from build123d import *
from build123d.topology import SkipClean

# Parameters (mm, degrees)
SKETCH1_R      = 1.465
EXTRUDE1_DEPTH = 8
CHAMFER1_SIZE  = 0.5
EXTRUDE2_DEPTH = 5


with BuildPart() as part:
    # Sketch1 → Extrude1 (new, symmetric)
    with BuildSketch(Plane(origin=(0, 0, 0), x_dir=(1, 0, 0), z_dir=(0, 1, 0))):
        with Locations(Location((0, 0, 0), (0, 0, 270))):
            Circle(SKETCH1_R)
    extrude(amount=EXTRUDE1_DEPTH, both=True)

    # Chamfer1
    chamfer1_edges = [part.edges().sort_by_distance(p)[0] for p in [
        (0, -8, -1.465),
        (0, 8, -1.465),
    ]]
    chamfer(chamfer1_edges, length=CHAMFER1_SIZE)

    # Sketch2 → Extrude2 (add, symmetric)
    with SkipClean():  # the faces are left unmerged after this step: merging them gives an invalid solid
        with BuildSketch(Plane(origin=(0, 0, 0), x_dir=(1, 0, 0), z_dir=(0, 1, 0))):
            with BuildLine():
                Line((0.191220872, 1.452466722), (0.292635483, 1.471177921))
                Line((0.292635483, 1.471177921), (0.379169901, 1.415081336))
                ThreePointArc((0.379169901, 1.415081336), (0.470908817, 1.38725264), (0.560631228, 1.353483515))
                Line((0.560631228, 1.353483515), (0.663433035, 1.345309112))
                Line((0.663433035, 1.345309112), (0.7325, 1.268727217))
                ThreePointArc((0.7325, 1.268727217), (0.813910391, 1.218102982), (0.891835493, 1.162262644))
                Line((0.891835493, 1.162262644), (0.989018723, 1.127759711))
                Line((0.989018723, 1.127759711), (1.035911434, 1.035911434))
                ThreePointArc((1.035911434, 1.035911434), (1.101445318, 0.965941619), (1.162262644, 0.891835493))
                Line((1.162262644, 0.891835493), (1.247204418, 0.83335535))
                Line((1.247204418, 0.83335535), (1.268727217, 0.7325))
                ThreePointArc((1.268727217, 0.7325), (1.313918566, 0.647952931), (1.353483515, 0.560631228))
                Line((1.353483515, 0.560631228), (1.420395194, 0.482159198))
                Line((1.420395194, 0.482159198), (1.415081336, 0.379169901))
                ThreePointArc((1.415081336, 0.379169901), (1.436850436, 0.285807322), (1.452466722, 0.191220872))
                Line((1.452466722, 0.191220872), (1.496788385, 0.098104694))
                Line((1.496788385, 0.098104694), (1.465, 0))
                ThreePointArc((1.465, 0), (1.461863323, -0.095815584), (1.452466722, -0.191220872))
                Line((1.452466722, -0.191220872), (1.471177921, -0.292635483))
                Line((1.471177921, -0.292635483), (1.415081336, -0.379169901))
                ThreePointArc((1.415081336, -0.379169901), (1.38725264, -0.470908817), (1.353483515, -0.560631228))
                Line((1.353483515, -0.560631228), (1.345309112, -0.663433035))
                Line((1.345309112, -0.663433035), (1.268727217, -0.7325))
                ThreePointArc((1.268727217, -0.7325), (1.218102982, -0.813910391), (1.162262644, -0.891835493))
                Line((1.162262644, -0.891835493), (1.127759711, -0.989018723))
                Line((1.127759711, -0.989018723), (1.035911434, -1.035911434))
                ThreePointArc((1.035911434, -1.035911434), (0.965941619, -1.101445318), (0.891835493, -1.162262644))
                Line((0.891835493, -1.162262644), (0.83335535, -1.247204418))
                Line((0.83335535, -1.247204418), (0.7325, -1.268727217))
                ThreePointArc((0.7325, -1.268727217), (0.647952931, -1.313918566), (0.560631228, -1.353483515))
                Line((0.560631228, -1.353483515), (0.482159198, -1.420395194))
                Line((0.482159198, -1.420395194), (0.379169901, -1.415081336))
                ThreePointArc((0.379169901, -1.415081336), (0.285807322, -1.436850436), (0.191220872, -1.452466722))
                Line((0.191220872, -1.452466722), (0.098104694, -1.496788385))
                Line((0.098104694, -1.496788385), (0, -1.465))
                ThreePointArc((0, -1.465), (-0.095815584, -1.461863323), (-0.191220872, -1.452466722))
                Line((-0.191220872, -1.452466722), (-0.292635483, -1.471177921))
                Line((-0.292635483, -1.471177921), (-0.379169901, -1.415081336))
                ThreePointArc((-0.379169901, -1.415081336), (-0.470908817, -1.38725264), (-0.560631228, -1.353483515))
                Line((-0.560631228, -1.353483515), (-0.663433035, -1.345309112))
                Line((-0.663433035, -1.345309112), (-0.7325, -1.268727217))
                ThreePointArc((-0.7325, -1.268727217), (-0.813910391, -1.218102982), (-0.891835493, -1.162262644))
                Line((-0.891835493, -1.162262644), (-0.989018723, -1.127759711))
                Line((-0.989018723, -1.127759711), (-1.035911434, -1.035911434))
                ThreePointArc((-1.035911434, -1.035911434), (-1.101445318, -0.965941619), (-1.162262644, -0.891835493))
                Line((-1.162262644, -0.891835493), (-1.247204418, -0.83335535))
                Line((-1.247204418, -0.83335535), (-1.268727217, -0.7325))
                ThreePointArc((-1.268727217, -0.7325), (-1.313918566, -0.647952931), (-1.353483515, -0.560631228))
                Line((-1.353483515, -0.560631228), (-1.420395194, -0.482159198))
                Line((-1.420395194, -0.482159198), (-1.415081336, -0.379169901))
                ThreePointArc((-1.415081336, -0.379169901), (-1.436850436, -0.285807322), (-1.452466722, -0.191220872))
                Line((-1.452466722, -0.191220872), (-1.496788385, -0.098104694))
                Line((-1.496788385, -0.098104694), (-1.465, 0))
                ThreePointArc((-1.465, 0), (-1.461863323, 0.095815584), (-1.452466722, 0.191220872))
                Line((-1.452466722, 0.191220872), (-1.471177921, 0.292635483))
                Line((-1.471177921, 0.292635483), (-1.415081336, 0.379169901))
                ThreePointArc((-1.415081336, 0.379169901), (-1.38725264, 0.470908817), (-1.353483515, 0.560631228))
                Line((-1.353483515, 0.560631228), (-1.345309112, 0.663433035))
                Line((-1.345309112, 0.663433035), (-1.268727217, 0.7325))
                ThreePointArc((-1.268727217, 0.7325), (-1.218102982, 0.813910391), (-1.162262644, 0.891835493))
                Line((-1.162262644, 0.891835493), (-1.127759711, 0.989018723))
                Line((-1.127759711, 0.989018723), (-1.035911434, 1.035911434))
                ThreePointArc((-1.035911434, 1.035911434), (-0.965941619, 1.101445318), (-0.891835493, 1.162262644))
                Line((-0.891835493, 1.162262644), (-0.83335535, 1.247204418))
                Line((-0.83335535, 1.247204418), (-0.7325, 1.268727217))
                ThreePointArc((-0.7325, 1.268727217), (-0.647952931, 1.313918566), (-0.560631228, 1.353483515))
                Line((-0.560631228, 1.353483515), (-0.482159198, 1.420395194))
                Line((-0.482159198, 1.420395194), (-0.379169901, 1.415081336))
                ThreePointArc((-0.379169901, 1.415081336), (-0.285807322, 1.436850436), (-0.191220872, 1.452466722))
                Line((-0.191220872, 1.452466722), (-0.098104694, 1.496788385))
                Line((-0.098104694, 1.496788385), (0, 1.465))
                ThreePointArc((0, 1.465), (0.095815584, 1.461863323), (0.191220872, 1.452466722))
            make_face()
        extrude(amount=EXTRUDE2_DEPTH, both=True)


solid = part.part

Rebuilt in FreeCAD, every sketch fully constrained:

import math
import FreeCAD as App
import Part
import Sketcher


def edges_at(feature, points):
    """Names of the edges that pass closest to the given points."""
    edges = feature.Shape.Edges
    near = lambda p: min(range(len(edges)), key=lambda i: edges[i].distToShape(Part.Vertex(*p))[0])
    return sorted({f"Edge{near(p) + 1}" for p in points})

doc = App.newDocument("Part")
body = doc.addObject("PartDesign::Body", "Body")

# Sketch on XZ plane
sketch1 = body.newObject("Sketcher::SketchObject", "Sketch")
sketch1.AttachmentSupport = (doc.getObject("XZ_Plane"), [""])
sketch1.MapMode = "FlatFace"
sketch1.addGeometry(Part.Circle(App.Vector(0, 0, 0), App.Vector(0, 0, 1), 1.465), False)
sketch1.addConstraint(Sketcher.Constraint("Coincident", 0, 3, -1, 1))
sketch1.addConstraint(Sketcher.Constraint("Diameter", 0, 2.93))
pad1 = body.newObject("PartDesign::Pad", "Pad")
pad1.Profile = sketch1
pad1.Length = 16
pad1.Midplane = True
doc.recompute()

chamfer = body.newObject("PartDesign::Chamfer", "Chamfer")
chamfer.Base = (pad1, edges_at(pad1, [(0, -8, -1.465), (0, 8, -1.465)]))
chamfer.Size = 0.5

# Sketch on XZ plane
sketch2 = body.newObject("Sketcher::SketchObject", "Sketch001")
sketch2.AttachmentSupport = (doc.getObject("XZ_Plane"), [""])
sketch2.MapMode = "FlatFace"
sketch2.addGeometry(Part.LineSegment(App.Vector(0.292635, -1.471178, 0), App.Vector(0.191221, -1.452467, 0)), False)
sketch2.addGeometry(Part.ArcOfCircle(Part.Circle(App.Vector(0, 0, 0), App.Vector(0, 0, 1), 1.465), math.radians(-90), math.radians(-82.5)), False)
sketch2.addGeometry(Part.LineSegment(App.Vector(0, -1.465, 0), App.Vector(-0.098105, -1.496788, 0)), False)
sketch2.addGeometry(Part.LineSegment(App.Vector(-0.098105, -1.496788, 0), App.Vector(-0.191221, -1.452467, 0)), False)
sketch2.addGeometry(Part.ArcOfCircle(Part.Circle(App.Vector(0, 0, 0), App.Vector(0, 0, 1), 1.465), math.radians(-105), math.radians(-97.5)), False)
sketch2.addGeometry(Part.LineSegment(App.Vector(-0.37917, -1.415081, 0), App.Vector(-0.482159, -1.420395, 0)), False)
sketch2.addGeometry(Part.LineSegment(App.Vector(-0.482159, -1.420395, 0), App.Vector(-0.560631, -1.353484, 0)), False)
sketch2.addGeometry(Part.ArcOfCircle(Part.Circle(App.Vector(0, 0, 0), App.Vector(0, 0, 1), 1.465), math.radians(-119.999999), math.radians(-112.5)), False)
sketch2.addGeometry(Part.LineSegment(App.Vector(-0.7325, -1.268727, 0), App.Vector(-0.833355, -1.247204, 0)), False)
sketch2.addGeometry(Part.LineSegment(App.Vector(-0.833355, -1.247204, 0), App.Vector(-0.891835, -1.162263, 0)), False)
sketch2.addGeometry(Part.ArcOfCircle(Part.Circle(App.Vector(0, 0, 0), App.Vector(0, 0, 1), 1.465), math.radians(-135), math.radians(-127.5)), False)
sketch2.addGeometry(Part.LineSegment(App.Vector(-1.035911, -1.035911, 0), App.Vector(-1.12776, -0.989019, 0)), False)
sketch2.addGeometry(Part.LineSegment(App.Vector(-1.12776, -0.989019, 0), App.Vector(-1.162263, -0.891835, 0)), False)
sketch2.addGeometry(Part.ArcOfCircle(Part.Circle(App.Vector(0, 0, 0), App.Vector(0, 0, 1), 1.465), math.radians(-149.999999), math.radians(-142.5)), False)
sketch2.addGeometry(Part.LineSegment(App.Vector(-1.268727, -0.7325, 0), App.Vector(-1.345309, -0.663433, 0)), False)
sketch2.addGeometry(Part.LineSegment(App.Vector(-1.345309, -0.663433, 0), App.Vector(-1.353484, -0.560631, 0)), False)
sketch2.addGeometry(Part.ArcOfCircle(Part.Circle(App.Vector(0, 0, 0), App.Vector(0, 0, 1), 1.465), math.radians(-165), math.radians(-157.499999)), False)
sketch2.addGeometry(Part.LineSegment(App.Vector(-1.415081, -0.37917, 0), App.Vector(-1.471178, -0.292635, 0)), False)
sketch2.addGeometry(Part.LineSegment(App.Vector(-1.471178, -0.292635, 0), App.Vector(-1.452467, -0.191221, 0)), False)
sketch2.addGeometry(Part.ArcOfCircle(Part.Circle(App.Vector(0, 0, 0), App.Vector(0, 0, 1), 1.465), math.radians(180), math.radians(187.5)), False)
sketch2.addGeometry(Part.LineSegment(App.Vector(-1.465, 0, 0), App.Vector(-1.496788, 0.098105, 0)), False)
sketch2.addGeometry(Part.LineSegment(App.Vector(-1.496788, 0.098105, 0), App.Vector(-1.452467, 0.191221, 0)), False)
sketch2.addGeometry(Part.ArcOfCircle(Part.Circle(App.Vector(0, 0, 0), App.Vector(0, 0, 1), 1.465), math.radians(165), math.radians(172.5)), False)
sketch2.addGeometry(Part.LineSegment(App.Vector(-1.415081, 0.37917, 0), App.Vector(-1.420395, 0.482159, 0)), False)
sketch2.addGeometry(Part.LineSegment(App.Vector(-1.420395, 0.482159, 0), App.Vector(-1.353484, 0.560631, 0)), False)
sketch2.addGeometry(Part.ArcOfCircle(Part.Circle(App.Vector(0, 0, 0), App.Vector(0, 0, 1), 1.465), math.radians(150.000001), math.radians(157.5)), False)
sketch2.addGeometry(Part.LineSegment(App.Vector(-1.268727, 0.7325, 0), App.Vector(-1.247204, 0.833355, 0)), False)
sketch2.addGeometry(Part.LineSegment(App.Vector(-1.247204, 0.833355, 0), App.Vector(-1.162263, 0.891835, 0)), False)
sketch2.addGeometry(Part.ArcOfCircle(Part.Circle(App.Vector(0, 0, 0), App.Vector(0, 0, 1), 1.465), math.radians(135), math.radians(142.5)), False)
sketch2.addGeometry(Part.LineSegment(App.Vector(-1.035911, 1.035911, 0), App.Vector(-0.989019, 1.12776, 0)), False)
sketch2.addGeometry(Part.LineSegment(App.Vector(-0.989019, 1.12776, 0), App.Vector(-0.891835, 1.162263, 0)), False)
sketch2.addGeometry(Part.ArcOfCircle(Part.Circle(App.Vector(0, 0, 0), App.Vector(0, 0, 1), 1.465), math.radians(120.000001), math.radians(127.5)), False)
sketch2.addGeometry(Part.LineSegment(App.Vector(-0.7325, 1.268727, 0), App.Vector(-0.663433, 1.345309, 0)), False)
sketch2.addGeometry(Part.LineSegment(App.Vector(-0.663433, 1.345309, 0), App.Vector(-0.560631, 1.353484, 0)), False)
sketch2.addGeometry(Part.ArcOfCircle(Part.Circle(App.Vector(0, 0, 0), App.Vector(0, 0, 1), 1.465), math.radians(105), math.radians(112.500001)), False)
sketch2.addGeometry(Part.LineSegment(App.Vector(-0.37917, 1.415081, 0), App.Vector(-0.292635, 1.471178, 0)), False)
sketch2.addGeometry(Part.LineSegment(App.Vector(-0.292635, 1.471178, 0), App.Vector(-0.191221, 1.452467, 0)), False)
sketch2.addGeometry(Part.ArcOfCircle(Part.Circle(App.Vector(0, 0, 0), App.Vector(0, 0, 1), 1.465), math.radians(90), math.radians(97.5)), False)
sketch2.addGeometry(Part.LineSegment(App.Vector(0, 1.465, 0), App.Vector(0.098105, 1.496788, 0)), False)
sketch2.addGeometry(Part.LineSegment(App.Vector(0.098105, 1.496788, 0), App.Vector(0.191221, 1.452467, 0)), False)
sketch2.addGeometry(Part.ArcOfCircle(Part.Circle(App.Vector(0, 0, 0), App.Vector(0, 0, 1), 1.465), math.radians(75), math.radians(82.5)), False)
sketch2.addGeometry(Part.LineSegment(App.Vector(0.37917, 1.415081, 0), App.Vector(0.482159, 1.420395, 0)), False)
sketch2.addGeometry(Part.LineSegment(App.Vector(0.482159, 1.420395, 0), App.Vector(0.560631, 1.353484, 0)), False)
sketch2.addGeometry(Part.ArcOfCircle(Part.Circle(App.Vector(0, 0, 0), App.Vector(0, 0, 1), 1.465), math.radians(60.000001), math.radians(67.5)), False)
sketch2.addGeometry(Part.LineSegment(App.Vector(0.7325, 1.268727, 0), App.Vector(0.833355, 1.247204, 0)), False)
sketch2.addGeometry(Part.LineSegment(App.Vector(0.833355, 1.247204, 0), App.Vector(0.891835, 1.162263, 0)), False)
sketch2.addGeometry(Part.ArcOfCircle(Part.Circle(App.Vector(0, 0, 0), App.Vector(0, 0, 1), 1.465), math.radians(45), math.radians(52.5)), False)
sketch2.addGeometry(Part.LineSegment(App.Vector(1.035911, 1.035911, 0), App.Vector(1.12776, 0.989019, 0)), False)
sketch2.addGeometry(Part.LineSegment(App.Vector(1.12776, 0.989019, 0), App.Vector(1.162263, 0.891835, 0)), False)
sketch2.addGeometry(Part.ArcOfCircle(Part.Circle(App.Vector(0, 0, 0), App.Vector(0, 0, 1), 1.465), math.radians(30.000001), math.radians(37.5)), False)
sketch2.addGeometry(Part.LineSegment(App.Vector(1.268727, 0.7325, 0), App.Vector(1.345309, 0.663433, 0)), False)
sketch2.addGeometry(Part.LineSegment(App.Vector(1.345309, 0.663433, 0), App.Vector(1.353484, 0.560631, 0)), False)
sketch2.addGeometry(Part.ArcOfCircle(Part.Circle(App.Vector(0, 0, 0), App.Vector(0, 0, 1), 1.465), math.radians(15), math.radians(22.500001)), False)
sketch2.addGeometry(Part.LineSegment(App.Vector(1.415081, 0.37917, 0), App.Vector(1.471178, 0.292635, 0)), False)
sketch2.addGeometry(Part.LineSegment(App.Vector(1.471178, 0.292635, 0), App.Vector(1.452467, 0.191221, 0)), False)
sketch2.addGeometry(Part.ArcOfCircle(Part.Circle(App.Vector(0, 0, 0), App.Vector(0, 0, 1), 1.465), math.radians(0), math.radians(7.5)), False)
sketch2.addGeometry(Part.LineSegment(App.Vector(1.465, 0, 0), App.Vector(1.496788, -0.098105, 0)), False)
sketch2.addGeometry(Part.LineSegment(App.Vector(1.496788, -0.098105, 0), App.Vector(1.452467, -0.191221, 0)), False)
sketch2.addGeometry(Part.ArcOfCircle(Part.Circle(App.Vector(0, 0, 0), App.Vector(0, 0, 1), 1.465), math.radians(-15), math.radians(-7.5)), False)
sketch2.addGeometry(Part.LineSegment(App.Vector(1.415081, -0.37917, 0), App.Vector(1.420395, -0.482159, 0)), False)
sketch2.addGeometry(Part.LineSegment(App.Vector(1.420395, -0.482159, 0), App.Vector(1.353484, -0.560631, 0)), False)
sketch2.addGeometry(Part.ArcOfCircle(Part.Circle(App.Vector(0, 0, 0), App.Vector(0, 0, 1), 1.465), math.radians(-29.999999), math.radians(-22.5)), False)
sketch2.addGeometry(Part.LineSegment(App.Vector(1.268727, -0.7325, 0), App.Vector(1.247204, -0.833355, 0)), False)
sketch2.addGeometry(Part.LineSegment(App.Vector(1.247204, -0.833355, 0), App.Vector(1.162263, -0.891835, 0)), False)
sketch2.addGeometry(Part.ArcOfCircle(Part.Circle(App.Vector(0, 0, 0), App.Vector(0, 0, 1), 1.465), math.radians(-45), math.radians(-37.5)), False)
sketch2.addGeometry(Part.LineSegment(App.Vector(1.035911, -1.035911, 0), App.Vector(0.989019, -1.12776, 0)), False)
sketch2.addGeometry(Part.LineSegment(App.Vector(0.989019, -1.12776, 0), App.Vector(0.891835, -1.162263, 0)), False)
sketch2.addGeometry(Part.ArcOfCircle(Part.Circle(App.Vector(0, 0, 0), App.Vector(0, 0, 1), 1.465), math.radians(-59.999999), math.radians(-52.5)), False)
sketch2.addGeometry(Part.LineSegment(App.Vector(0.7325, -1.268727, 0), App.Vector(0.663433, -1.345309, 0)), False)
sketch2.addGeometry(Part.LineSegment(App.Vector(0.663433, -1.345309, 0), App.Vector(0.560631, -1.353484, 0)), False)
sketch2.addGeometry(Part.ArcOfCircle(Part.Circle(App.Vector(0, 0, 0), App.Vector(0, 0, 1), 1.465), math.radians(-75), math.radians(-67.499999)), False)
sketch2.addGeometry(Part.LineSegment(App.Vector(0.37917, -1.415081, 0), App.Vector(0.292635, -1.471178, 0)), False)
sketch2.addConstraint(Sketcher.Constraint("Coincident", 0, 2, 1, 2))
sketch2.addConstraint(Sketcher.Constraint("Coincident", 1, 1, 2, 1))
sketch2.addConstraint(Sketcher.Constraint("Coincident", 2, 2, 3, 1))
sketch2.addConstraint(Sketcher.Constraint("Coincident", 3, 2, 4, 2))
sketch2.addConstraint(Sketcher.Constraint("Coincident", 4, 1, 5, 1))
sketch2.addConstraint(Sketcher.Constraint("Coincident", 5, 2, 6, 1))
sketch2.addConstraint(Sketcher.Constraint("Coincident", 6, 2, 7, 2))
sketch2.addConstraint(Sketcher.Constraint("Coincident", 7, 1, 8, 1))
sketch2.addConstraint(Sketcher.Constraint("Coincident", 8, 2, 9, 1))
sketch2.addConstraint(Sketcher.Constraint("Coincident", 9, 2, 10, 2))
sketch2.addConstraint(Sketcher.Constraint("Coincident", 10, 1, 11, 1))
sketch2.addConstraint(Sketcher.Constraint("Coincident", 11, 2, 12, 1))
sketch2.addConstraint(Sketcher.Constraint("Coincident", 12, 2, 13, 2))
sketch2.addConstraint(Sketcher.Constraint("Coincident", 13, 1, 14, 1))
sketch2.addConstraint(Sketcher.Constraint("Coincident", 14, 2, 15, 1))
sketch2.addConstraint(Sketcher.Constraint("Coincident", 15, 2, 16, 2))
sketch2.addConstraint(Sketcher.Constraint("Coincident", 16, 1, 17, 1))
sketch2.addConstraint(Sketcher.Constraint("Coincident", 17, 2, 18, 1))
sketch2.addConstraint(Sketcher.Constraint("Coincident", 18, 2, 19, 2))
sketch2.addConstraint(Sketcher.Constraint("Coincident", 19, 1, 20, 1))
sketch2.addConstraint(Sketcher.Constraint("Coincident", 20, 2, 21, 1))
sketch2.addConstraint(Sketcher.Constraint("Coincident", 21, 2, 22, 2))
sketch2.addConstraint(Sketcher.Constraint("Coincident", 22, 1, 23, 1))
sketch2.addConstraint(Sketcher.Constraint("Coincident", 23, 2, 24, 1))
sketch2.addConstraint(Sketcher.Constraint("Coincident", 24, 2, 25, 2))
sketch2.addConstraint(Sketcher.Constraint("Coincident", 25, 1, 26, 1))
sketch2.addConstraint(Sketcher.Constraint("Coincident", 26, 2, 27, 1))
sketch2.addConstraint(Sketcher.Constraint("Coincident", 27, 2, 28, 2))
sketch2.addConstraint(Sketcher.Constraint("Coincident", 28, 1, 29, 1))
sketch2.addConstraint(Sketcher.Constraint("Coincident", 29, 2, 30, 1))
sketch2.addConstraint(Sketcher.Constraint("Coincident", 30, 2, 31, 2))
sketch2.addConstraint(Sketcher.Constraint("Coincident", 31, 1, 32, 1))
sketch2.addConstraint(Sketcher.Constraint("Coincident", 32, 2, 33, 1))
sketch2.addConstraint(Sketcher.Constraint("Coincident", 33, 2, 34, 2))
sketch2.addConstraint(Sketcher.Constraint("Coincident", 34, 1, 35, 1))
sketch2.addConstraint(Sketcher.Constraint("Coincident", 35, 2, 36, 1))
sketch2.addConstraint(Sketcher.Constraint("Coincident", 36, 2, 37, 2))
sketch2.addConstraint(Sketcher.Constraint("Coincident", 37, 1, 38, 1))
sketch2.addConstraint(Sketcher.Constraint("Coincident", 38, 2, 39, 1))
sketch2.addConstraint(Sketcher.Constraint("Coincident", 39, 2, 40, 2))
sketch2.addConstraint(Sketcher.Constraint("Coincident", 40, 1, 41, 1))
sketch2.addConstraint(Sketcher.Constraint("Coincident", 41, 2, 42, 1))
sketch2.addConstraint(Sketcher.Constraint("Coincident", 42, 2, 43, 2))
sketch2.addConstraint(Sketcher.Constraint("Coincident", 43, 1, 44, 1))
sketch2.addConstraint(Sketcher.Constraint("Coincident", 44, 2, 45, 1))
sketch2.addConstraint(Sketcher.Constraint("Coincident", 45, 2, 46, 2))
sketch2.addConstraint(Sketcher.Constraint("Coincident", 46, 1, 47, 1))
sketch2.addConstraint(Sketcher.Constraint("Coincident", 47, 2, 48, 1))
sketch2.addConstraint(Sketcher.Constraint("Coincident", 48, 2, 49, 2))
sketch2.addConstraint(Sketcher.Constraint("Coincident", 49, 1, 50, 1))
sketch2.addConstraint(Sketcher.Constraint("Coincident", 50, 2, 51, 1))
sketch2.addConstraint(Sketcher.Constraint("Coincident", 51, 2, 52, 2))
sketch2.addConstraint(Sketcher.Constraint("Coincident", 52, 1, 53, 1))
sketch2.addConstraint(Sketcher.Constraint("Coincident", 53, 2, 54, 1))
sketch2.addConstraint(Sketcher.Constraint("Coincident", 54, 2, 55, 2))
sketch2.addConstraint(Sketcher.Constraint("Coincident", 55, 1, 56, 1))
sketch2.addConstraint(Sketcher.Constraint("Coincident", 56, 2, 57, 1))
sketch2.addConstraint(Sketcher.Constraint("Coincident", 57, 2, 58, 2))
sketch2.addConstraint(Sketcher.Constraint("Coincident", 58, 1, 59, 1))
sketch2.addConstraint(Sketcher.Constraint("Coincident", 59, 2, 60, 1))
sketch2.addConstraint(Sketcher.Constraint("Coincident", 60, 2, 61, 2))
sketch2.addConstraint(Sketcher.Constraint("Coincident", 61, 1, 62, 1))
sketch2.addConstraint(Sketcher.Constraint("Coincident", 62, 2, 63, 1))
sketch2.addConstraint(Sketcher.Constraint("Coincident", 63, 2, 64, 2))
sketch2.addConstraint(Sketcher.Constraint("Coincident", 64, 1, 65, 1))
sketch2.addConstraint(Sketcher.Constraint("Coincident", 65, 2, 66, 1))
sketch2.addConstraint(Sketcher.Constraint("Coincident", 66, 2, 67, 2))
sketch2.addConstraint(Sketcher.Constraint("Coincident", 67, 1, 68, 1))
sketch2.addConstraint(Sketcher.Constraint("Coincident", 68, 2, 69, 1))
sketch2.addConstraint(Sketcher.Constraint("Coincident", 69, 2, 70, 2))
sketch2.addConstraint(Sketcher.Constraint("Coincident", 70, 1, 71, 1))
sketch2.addConstraint(Sketcher.Constraint("Coincident", 71, 2, 0, 1))
sketch2.addConstraint(Sketcher.Constraint("Coincident", 1, 3, -1, 1))
sketch2.addConstraint(Sketcher.Constraint("Coincident", 4, 3, -1, 1))
sketch2.addConstraint(Sketcher.Constraint("Coincident", 7, 3, -1, 1))
sketch2.addConstraint(Sketcher.Constraint("Coincident", 10, 3, -1, 1))
sketch2.addConstraint(Sketcher.Constraint("Coincident", 13, 3, -1, 1))
sketch2.addConstraint(Sketcher.Constraint("Coincident", 16, 3, -1, 1))
sketch2.addConstraint(Sketcher.Constraint("Coincident", 19, 3, -1, 1))
sketch2.addConstraint(Sketcher.Constraint("Coincident", 22, 3, -1, 1))
sketch2.addConstraint(Sketcher.Constraint("Coincident", 25, 3, -1, 1))
sketch2.addConstraint(Sketcher.Constraint("Coincident", 28, 3, -1, 1))
sketch2.addConstraint(Sketcher.Constraint("Coincident", 31, 3, -1, 1))
sketch2.addConstraint(Sketcher.Constraint("Coincident", 34, 3, -1, 1))
sketch2.addConstraint(Sketcher.Constraint("Coincident", 37, 3, -1, 1))
sketch2.addConstraint(Sketcher.Constraint("Coincident", 40, 3, -1, 1))
sketch2.addConstraint(Sketcher.Constraint("Coincident", 43, 3, -1, 1))
sketch2.addConstraint(Sketcher.Constraint("Coincident", 46, 3, -1, 1))
sketch2.addConstraint(Sketcher.Constraint("Coincident", 49, 3, -1, 1))
sketch2.addConstraint(Sketcher.Constraint("Coincident", 52, 3, -1, 1))
sketch2.addConstraint(Sketcher.Constraint("Coincident", 55, 3, -1, 1))
sketch2.addConstraint(Sketcher.Constraint("Coincident", 58, 3, -1, 1))
sketch2.addConstraint(Sketcher.Constraint("Coincident", 61, 3, -1, 1))
sketch2.addConstraint(Sketcher.Constraint("Coincident", 64, 3, -1, 1))
sketch2.addConstraint(Sketcher.Constraint("Coincident", 67, 3, -1, 1))
sketch2.addConstraint(Sketcher.Constraint("Coincident", 70, 3, -1, 1))
sketch2.addConstraint(Sketcher.Constraint("Equal", 1, 4))
sketch2.addConstraint(Sketcher.Constraint("Equal", 4, 7))
sketch2.addConstraint(Sketcher.Constraint("Equal", 7, 10))
sketch2.addConstraint(Sketcher.Constraint("Equal", 10, 13))
sketch2.addConstraint(Sketcher.Constraint("Equal", 13, 16))
sketch2.addConstraint(Sketcher.Constraint("Equal", 16, 19))
sketch2.addConstraint(Sketcher.Constraint("Equal", 19, 22))
sketch2.addConstraint(Sketcher.Constraint("Equal", 22, 25))
sketch2.addConstraint(Sketcher.Constraint("Equal", 25, 28))
sketch2.addConstraint(Sketcher.Constraint("Equal", 28, 31))
sketch2.addConstraint(Sketcher.Constraint("Equal", 31, 34))
sketch2.addConstraint(Sketcher.Constraint("Equal", 34, 37))
sketch2.addConstraint(Sketcher.Constraint("Equal", 37, 40))
sketch2.addConstraint(Sketcher.Constraint("Equal", 40, 43))
sketch2.addConstraint(Sketcher.Constraint("Equal", 43, 46))
sketch2.addConstraint(Sketcher.Constraint("Equal", 46, 49))
sketch2.addConstraint(Sketcher.Constraint("Equal", 49, 52))
sketch2.addConstraint(Sketcher.Constraint("Equal", 52, 55))
sketch2.addConstraint(Sketcher.Constraint("Equal", 55, 58))
sketch2.addConstraint(Sketcher.Constraint("Equal", 58, 61))
sketch2.addConstraint(Sketcher.Constraint("Equal", 61, 64))
sketch2.addConstraint(Sketcher.Constraint("Equal", 64, 67))
sketch2.addConstraint(Sketcher.Constraint("Equal", 67, 70))
sketch2.addConstraint(Sketcher.Constraint("Symmetric", 2, 2, 38, 2, -1, 1))
sketch2.addConstraint(Sketcher.Constraint("Symmetric", 5, 2, 41, 2, -1, 1))
sketch2.addConstraint(Sketcher.Constraint("Symmetric", 8, 2, 44, 2, -1, 1))
sketch2.addConstraint(Sketcher.Constraint("Symmetric", 11, 2, 47, 2, -1, 1))
sketch2.addConstraint(Sketcher.Constraint("Symmetric", 14, 2, 50, 2, -1, 1))
sketch2.addConstraint(Sketcher.Constraint("Symmetric", 17, 2, 53, 2, -1, 1))
sketch2.addConstraint(Sketcher.Constraint("Symmetric", 20, 2, 56, 2, -1, 1))
sketch2.addConstraint(Sketcher.Constraint("Symmetric", 23, 2, 59, 2, -1, 1))
sketch2.addConstraint(Sketcher.Constraint("Symmetric", 26, 2, 62, 2, -1, 1))
sketch2.addConstraint(Sketcher.Constraint("Symmetric", 29, 2, 65, 2, -1, 1))
sketch2.addConstraint(Sketcher.Constraint("Symmetric", 32, 2, 68, 2, -1, 1))
sketch2.addConstraint(Sketcher.Constraint("Symmetric", 35, 2, 71, 2, -1, 1))
sketch2.addConstraint(Sketcher.Constraint("PointOnObject", 1, 1, -2))
sketch2.addConstraint(Sketcher.Constraint("PointOnObject", 19, 1, -1))
sketch2.addConstraint(Sketcher.Constraint("PointOnObject", 37, 1, -2))
sketch2.addConstraint(Sketcher.Constraint("PointOnObject", 55, 1, -1))
sketch2.addConstraint(Sketcher.Constraint("Perpendicular", 0, 18))
sketch2.addConstraint(Sketcher.Constraint("Perpendicular", 2, 20))
sketch2.addConstraint(Sketcher.Constraint("Perpendicular", 3, 21))
sketch2.addConstraint(Sketcher.Constraint("Perpendicular", 5, 23))
sketch2.addConstraint(Sketcher.Constraint("Perpendicular", 6, 24))
sketch2.addConstraint(Sketcher.Constraint("Perpendicular", 8, 26))
sketch2.addConstraint(Sketcher.Constraint("Perpendicular", 9, 27))
sketch2.addConstraint(Sketcher.Constraint("Perpendicular", 11, 29))
sketch2.addConstraint(Sketcher.Constraint("Perpendicular", 12, 30))
sketch2.addConstraint(Sketcher.Constraint("Perpendicular", 14, 32))
sketch2.addConstraint(Sketcher.Constraint("Perpendicular", 15, 33))
sketch2.addConstraint(Sketcher.Constraint("Perpendicular", 17, 35))
sketch2.addConstraint(Sketcher.Constraint("Perpendicular", 18, 36))
sketch2.addConstraint(Sketcher.Constraint("Perpendicular", 21, 39))
sketch2.addConstraint(Sketcher.Constraint("Perpendicular", 23, 41))
sketch2.addConstraint(Sketcher.Constraint("Perpendicular", 24, 42))
sketch2.addConstraint(Sketcher.Constraint("Perpendicular", 26, 44))
sketch2.addConstraint(Sketcher.Constraint("Perpendicular", 27, 45))
sketch2.addConstraint(Sketcher.Constraint("Perpendicular", 29, 47))
sketch2.addConstraint(Sketcher.Constraint("Perpendicular", 30, 48))
sketch2.addConstraint(Sketcher.Constraint("Perpendicular", 32, 50))
sketch2.addConstraint(Sketcher.Constraint("Perpendicular", 33, 51))
sketch2.addConstraint(Sketcher.Constraint("Perpendicular", 35, 53))
sketch2.addConstraint(Sketcher.Constraint("Perpendicular", 36, 54))
sketch2.addConstraint(Sketcher.Constraint("Perpendicular", 39, 57))
sketch2.addConstraint(Sketcher.Constraint("Perpendicular", 41, 59))
sketch2.addConstraint(Sketcher.Constraint("Perpendicular", 42, 60))
sketch2.addConstraint(Sketcher.Constraint("Perpendicular", 44, 62))
sketch2.addConstraint(Sketcher.Constraint("Perpendicular", 45, 63))
sketch2.addConstraint(Sketcher.Constraint("Perpendicular", 47, 65))
sketch2.addConstraint(Sketcher.Constraint("Perpendicular", 48, 66))
sketch2.addConstraint(Sketcher.Constraint("Perpendicular", 50, 68))
sketch2.addConstraint(Sketcher.Constraint("Perpendicular", 51, 69))
sketch2.addConstraint(Sketcher.Constraint("Perpendicular", 53, 71))
sketch2.addConstraint(Sketcher.Constraint("Horizontal", 0, 2, 3, 2))
sketch2.addConstraint(Sketcher.Constraint("Horizontal", 34, 1, 40, 1))
sketch2.addConstraint(Sketcher.Constraint("Horizontal", 33, 2, 42, 2))
sketch2.addConstraint(Sketcher.Constraint("Horizontal", 31, 1, 43, 1))
sketch2.addConstraint(Sketcher.Constraint("Horizontal", 30, 2, 45, 2))
sketch2.addConstraint(Sketcher.Constraint("Horizontal", 28, 1, 46, 1))
sketch2.addConstraint(Sketcher.Constraint("Horizontal", 27, 2, 48, 2))
sketch2.addConstraint(Sketcher.Constraint("Horizontal", 25, 1, 49, 1))
sketch2.addConstraint(Sketcher.Constraint("Horizontal", 24, 2, 51, 2))
sketch2.addConstraint(Sketcher.Constraint("Horizontal", 22, 1, 52, 1))
sketch2.addConstraint(Sketcher.Constraint("Horizontal", 21, 2, 54, 2))
sketch2.addConstraint(Sketcher.Constraint("Equal", 0, 2))
sketch2.addConstraint(Sketcher.Constraint("Equal", 2, 3))
sketch2.addConstraint(Sketcher.Constraint("Equal", 3, 5))
sketch2.addConstraint(Sketcher.Constraint("Equal", 5, 6))
sketch2.addConstraint(Sketcher.Constraint("Equal", 6, 8))
sketch2.addConstraint(Sketcher.Constraint("Equal", 8, 9))
sketch2.addConstraint(Sketcher.Constraint("Equal", 9, 11))
sketch2.addConstraint(Sketcher.Constraint("Equal", 11, 12))
sketch2.addConstraint(Sketcher.Constraint("Equal", 12, 14))
sketch2.addConstraint(Sketcher.Constraint("Equal", 14, 15))
sketch2.addConstraint(Sketcher.Constraint("Equal", 15, 17))
sketch2.addConstraint(Sketcher.Constraint("Equal", 17, 18))
sketch2.addConstraint(Sketcher.Constraint("Equal", 18, 20))
sketch2.addConstraint(Sketcher.Constraint("Equal", 21, 23))
sketch2.addConstraint(Sketcher.Constraint("Equal", 24, 26))
sketch2.addConstraint(Sketcher.Constraint("Equal", 26, 27))
sketch2.addConstraint(Sketcher.Constraint("Equal", 27, 29))
sketch2.addConstraint(Sketcher.Constraint("Radius", 1, 1.465))
sketch2.addConstraint(Sketcher.Constraint("DistanceX", 7, 1, -1, 1, 0.7325))
sketch2.addConstraint(Sketcher.Constraint("DistanceX", -1, 1, 0, 2, 0.191221))
sketch2.addConstraint(Sketcher.Constraint("DistanceY", 2, 2, -1, 1, 1.496788))
sketch2.addConstraint(Sketcher.Constraint("DistanceX", 4, 1, -1, 1, 0.37917))
sketch2.addConstraint(Sketcher.Constraint("DistanceX", 5, 2, -1, 1, 0.482159))
sketch2.addConstraint(Sketcher.Constraint("DistanceX", 11, 2, -1, 1, 1.12776))
pad2 = body.newObject("PartDesign::Pad", "Pad001")
pad2.Profile = sketch2
pad2.Length = 10
pad2.Midplane = True

doc.recompute()
